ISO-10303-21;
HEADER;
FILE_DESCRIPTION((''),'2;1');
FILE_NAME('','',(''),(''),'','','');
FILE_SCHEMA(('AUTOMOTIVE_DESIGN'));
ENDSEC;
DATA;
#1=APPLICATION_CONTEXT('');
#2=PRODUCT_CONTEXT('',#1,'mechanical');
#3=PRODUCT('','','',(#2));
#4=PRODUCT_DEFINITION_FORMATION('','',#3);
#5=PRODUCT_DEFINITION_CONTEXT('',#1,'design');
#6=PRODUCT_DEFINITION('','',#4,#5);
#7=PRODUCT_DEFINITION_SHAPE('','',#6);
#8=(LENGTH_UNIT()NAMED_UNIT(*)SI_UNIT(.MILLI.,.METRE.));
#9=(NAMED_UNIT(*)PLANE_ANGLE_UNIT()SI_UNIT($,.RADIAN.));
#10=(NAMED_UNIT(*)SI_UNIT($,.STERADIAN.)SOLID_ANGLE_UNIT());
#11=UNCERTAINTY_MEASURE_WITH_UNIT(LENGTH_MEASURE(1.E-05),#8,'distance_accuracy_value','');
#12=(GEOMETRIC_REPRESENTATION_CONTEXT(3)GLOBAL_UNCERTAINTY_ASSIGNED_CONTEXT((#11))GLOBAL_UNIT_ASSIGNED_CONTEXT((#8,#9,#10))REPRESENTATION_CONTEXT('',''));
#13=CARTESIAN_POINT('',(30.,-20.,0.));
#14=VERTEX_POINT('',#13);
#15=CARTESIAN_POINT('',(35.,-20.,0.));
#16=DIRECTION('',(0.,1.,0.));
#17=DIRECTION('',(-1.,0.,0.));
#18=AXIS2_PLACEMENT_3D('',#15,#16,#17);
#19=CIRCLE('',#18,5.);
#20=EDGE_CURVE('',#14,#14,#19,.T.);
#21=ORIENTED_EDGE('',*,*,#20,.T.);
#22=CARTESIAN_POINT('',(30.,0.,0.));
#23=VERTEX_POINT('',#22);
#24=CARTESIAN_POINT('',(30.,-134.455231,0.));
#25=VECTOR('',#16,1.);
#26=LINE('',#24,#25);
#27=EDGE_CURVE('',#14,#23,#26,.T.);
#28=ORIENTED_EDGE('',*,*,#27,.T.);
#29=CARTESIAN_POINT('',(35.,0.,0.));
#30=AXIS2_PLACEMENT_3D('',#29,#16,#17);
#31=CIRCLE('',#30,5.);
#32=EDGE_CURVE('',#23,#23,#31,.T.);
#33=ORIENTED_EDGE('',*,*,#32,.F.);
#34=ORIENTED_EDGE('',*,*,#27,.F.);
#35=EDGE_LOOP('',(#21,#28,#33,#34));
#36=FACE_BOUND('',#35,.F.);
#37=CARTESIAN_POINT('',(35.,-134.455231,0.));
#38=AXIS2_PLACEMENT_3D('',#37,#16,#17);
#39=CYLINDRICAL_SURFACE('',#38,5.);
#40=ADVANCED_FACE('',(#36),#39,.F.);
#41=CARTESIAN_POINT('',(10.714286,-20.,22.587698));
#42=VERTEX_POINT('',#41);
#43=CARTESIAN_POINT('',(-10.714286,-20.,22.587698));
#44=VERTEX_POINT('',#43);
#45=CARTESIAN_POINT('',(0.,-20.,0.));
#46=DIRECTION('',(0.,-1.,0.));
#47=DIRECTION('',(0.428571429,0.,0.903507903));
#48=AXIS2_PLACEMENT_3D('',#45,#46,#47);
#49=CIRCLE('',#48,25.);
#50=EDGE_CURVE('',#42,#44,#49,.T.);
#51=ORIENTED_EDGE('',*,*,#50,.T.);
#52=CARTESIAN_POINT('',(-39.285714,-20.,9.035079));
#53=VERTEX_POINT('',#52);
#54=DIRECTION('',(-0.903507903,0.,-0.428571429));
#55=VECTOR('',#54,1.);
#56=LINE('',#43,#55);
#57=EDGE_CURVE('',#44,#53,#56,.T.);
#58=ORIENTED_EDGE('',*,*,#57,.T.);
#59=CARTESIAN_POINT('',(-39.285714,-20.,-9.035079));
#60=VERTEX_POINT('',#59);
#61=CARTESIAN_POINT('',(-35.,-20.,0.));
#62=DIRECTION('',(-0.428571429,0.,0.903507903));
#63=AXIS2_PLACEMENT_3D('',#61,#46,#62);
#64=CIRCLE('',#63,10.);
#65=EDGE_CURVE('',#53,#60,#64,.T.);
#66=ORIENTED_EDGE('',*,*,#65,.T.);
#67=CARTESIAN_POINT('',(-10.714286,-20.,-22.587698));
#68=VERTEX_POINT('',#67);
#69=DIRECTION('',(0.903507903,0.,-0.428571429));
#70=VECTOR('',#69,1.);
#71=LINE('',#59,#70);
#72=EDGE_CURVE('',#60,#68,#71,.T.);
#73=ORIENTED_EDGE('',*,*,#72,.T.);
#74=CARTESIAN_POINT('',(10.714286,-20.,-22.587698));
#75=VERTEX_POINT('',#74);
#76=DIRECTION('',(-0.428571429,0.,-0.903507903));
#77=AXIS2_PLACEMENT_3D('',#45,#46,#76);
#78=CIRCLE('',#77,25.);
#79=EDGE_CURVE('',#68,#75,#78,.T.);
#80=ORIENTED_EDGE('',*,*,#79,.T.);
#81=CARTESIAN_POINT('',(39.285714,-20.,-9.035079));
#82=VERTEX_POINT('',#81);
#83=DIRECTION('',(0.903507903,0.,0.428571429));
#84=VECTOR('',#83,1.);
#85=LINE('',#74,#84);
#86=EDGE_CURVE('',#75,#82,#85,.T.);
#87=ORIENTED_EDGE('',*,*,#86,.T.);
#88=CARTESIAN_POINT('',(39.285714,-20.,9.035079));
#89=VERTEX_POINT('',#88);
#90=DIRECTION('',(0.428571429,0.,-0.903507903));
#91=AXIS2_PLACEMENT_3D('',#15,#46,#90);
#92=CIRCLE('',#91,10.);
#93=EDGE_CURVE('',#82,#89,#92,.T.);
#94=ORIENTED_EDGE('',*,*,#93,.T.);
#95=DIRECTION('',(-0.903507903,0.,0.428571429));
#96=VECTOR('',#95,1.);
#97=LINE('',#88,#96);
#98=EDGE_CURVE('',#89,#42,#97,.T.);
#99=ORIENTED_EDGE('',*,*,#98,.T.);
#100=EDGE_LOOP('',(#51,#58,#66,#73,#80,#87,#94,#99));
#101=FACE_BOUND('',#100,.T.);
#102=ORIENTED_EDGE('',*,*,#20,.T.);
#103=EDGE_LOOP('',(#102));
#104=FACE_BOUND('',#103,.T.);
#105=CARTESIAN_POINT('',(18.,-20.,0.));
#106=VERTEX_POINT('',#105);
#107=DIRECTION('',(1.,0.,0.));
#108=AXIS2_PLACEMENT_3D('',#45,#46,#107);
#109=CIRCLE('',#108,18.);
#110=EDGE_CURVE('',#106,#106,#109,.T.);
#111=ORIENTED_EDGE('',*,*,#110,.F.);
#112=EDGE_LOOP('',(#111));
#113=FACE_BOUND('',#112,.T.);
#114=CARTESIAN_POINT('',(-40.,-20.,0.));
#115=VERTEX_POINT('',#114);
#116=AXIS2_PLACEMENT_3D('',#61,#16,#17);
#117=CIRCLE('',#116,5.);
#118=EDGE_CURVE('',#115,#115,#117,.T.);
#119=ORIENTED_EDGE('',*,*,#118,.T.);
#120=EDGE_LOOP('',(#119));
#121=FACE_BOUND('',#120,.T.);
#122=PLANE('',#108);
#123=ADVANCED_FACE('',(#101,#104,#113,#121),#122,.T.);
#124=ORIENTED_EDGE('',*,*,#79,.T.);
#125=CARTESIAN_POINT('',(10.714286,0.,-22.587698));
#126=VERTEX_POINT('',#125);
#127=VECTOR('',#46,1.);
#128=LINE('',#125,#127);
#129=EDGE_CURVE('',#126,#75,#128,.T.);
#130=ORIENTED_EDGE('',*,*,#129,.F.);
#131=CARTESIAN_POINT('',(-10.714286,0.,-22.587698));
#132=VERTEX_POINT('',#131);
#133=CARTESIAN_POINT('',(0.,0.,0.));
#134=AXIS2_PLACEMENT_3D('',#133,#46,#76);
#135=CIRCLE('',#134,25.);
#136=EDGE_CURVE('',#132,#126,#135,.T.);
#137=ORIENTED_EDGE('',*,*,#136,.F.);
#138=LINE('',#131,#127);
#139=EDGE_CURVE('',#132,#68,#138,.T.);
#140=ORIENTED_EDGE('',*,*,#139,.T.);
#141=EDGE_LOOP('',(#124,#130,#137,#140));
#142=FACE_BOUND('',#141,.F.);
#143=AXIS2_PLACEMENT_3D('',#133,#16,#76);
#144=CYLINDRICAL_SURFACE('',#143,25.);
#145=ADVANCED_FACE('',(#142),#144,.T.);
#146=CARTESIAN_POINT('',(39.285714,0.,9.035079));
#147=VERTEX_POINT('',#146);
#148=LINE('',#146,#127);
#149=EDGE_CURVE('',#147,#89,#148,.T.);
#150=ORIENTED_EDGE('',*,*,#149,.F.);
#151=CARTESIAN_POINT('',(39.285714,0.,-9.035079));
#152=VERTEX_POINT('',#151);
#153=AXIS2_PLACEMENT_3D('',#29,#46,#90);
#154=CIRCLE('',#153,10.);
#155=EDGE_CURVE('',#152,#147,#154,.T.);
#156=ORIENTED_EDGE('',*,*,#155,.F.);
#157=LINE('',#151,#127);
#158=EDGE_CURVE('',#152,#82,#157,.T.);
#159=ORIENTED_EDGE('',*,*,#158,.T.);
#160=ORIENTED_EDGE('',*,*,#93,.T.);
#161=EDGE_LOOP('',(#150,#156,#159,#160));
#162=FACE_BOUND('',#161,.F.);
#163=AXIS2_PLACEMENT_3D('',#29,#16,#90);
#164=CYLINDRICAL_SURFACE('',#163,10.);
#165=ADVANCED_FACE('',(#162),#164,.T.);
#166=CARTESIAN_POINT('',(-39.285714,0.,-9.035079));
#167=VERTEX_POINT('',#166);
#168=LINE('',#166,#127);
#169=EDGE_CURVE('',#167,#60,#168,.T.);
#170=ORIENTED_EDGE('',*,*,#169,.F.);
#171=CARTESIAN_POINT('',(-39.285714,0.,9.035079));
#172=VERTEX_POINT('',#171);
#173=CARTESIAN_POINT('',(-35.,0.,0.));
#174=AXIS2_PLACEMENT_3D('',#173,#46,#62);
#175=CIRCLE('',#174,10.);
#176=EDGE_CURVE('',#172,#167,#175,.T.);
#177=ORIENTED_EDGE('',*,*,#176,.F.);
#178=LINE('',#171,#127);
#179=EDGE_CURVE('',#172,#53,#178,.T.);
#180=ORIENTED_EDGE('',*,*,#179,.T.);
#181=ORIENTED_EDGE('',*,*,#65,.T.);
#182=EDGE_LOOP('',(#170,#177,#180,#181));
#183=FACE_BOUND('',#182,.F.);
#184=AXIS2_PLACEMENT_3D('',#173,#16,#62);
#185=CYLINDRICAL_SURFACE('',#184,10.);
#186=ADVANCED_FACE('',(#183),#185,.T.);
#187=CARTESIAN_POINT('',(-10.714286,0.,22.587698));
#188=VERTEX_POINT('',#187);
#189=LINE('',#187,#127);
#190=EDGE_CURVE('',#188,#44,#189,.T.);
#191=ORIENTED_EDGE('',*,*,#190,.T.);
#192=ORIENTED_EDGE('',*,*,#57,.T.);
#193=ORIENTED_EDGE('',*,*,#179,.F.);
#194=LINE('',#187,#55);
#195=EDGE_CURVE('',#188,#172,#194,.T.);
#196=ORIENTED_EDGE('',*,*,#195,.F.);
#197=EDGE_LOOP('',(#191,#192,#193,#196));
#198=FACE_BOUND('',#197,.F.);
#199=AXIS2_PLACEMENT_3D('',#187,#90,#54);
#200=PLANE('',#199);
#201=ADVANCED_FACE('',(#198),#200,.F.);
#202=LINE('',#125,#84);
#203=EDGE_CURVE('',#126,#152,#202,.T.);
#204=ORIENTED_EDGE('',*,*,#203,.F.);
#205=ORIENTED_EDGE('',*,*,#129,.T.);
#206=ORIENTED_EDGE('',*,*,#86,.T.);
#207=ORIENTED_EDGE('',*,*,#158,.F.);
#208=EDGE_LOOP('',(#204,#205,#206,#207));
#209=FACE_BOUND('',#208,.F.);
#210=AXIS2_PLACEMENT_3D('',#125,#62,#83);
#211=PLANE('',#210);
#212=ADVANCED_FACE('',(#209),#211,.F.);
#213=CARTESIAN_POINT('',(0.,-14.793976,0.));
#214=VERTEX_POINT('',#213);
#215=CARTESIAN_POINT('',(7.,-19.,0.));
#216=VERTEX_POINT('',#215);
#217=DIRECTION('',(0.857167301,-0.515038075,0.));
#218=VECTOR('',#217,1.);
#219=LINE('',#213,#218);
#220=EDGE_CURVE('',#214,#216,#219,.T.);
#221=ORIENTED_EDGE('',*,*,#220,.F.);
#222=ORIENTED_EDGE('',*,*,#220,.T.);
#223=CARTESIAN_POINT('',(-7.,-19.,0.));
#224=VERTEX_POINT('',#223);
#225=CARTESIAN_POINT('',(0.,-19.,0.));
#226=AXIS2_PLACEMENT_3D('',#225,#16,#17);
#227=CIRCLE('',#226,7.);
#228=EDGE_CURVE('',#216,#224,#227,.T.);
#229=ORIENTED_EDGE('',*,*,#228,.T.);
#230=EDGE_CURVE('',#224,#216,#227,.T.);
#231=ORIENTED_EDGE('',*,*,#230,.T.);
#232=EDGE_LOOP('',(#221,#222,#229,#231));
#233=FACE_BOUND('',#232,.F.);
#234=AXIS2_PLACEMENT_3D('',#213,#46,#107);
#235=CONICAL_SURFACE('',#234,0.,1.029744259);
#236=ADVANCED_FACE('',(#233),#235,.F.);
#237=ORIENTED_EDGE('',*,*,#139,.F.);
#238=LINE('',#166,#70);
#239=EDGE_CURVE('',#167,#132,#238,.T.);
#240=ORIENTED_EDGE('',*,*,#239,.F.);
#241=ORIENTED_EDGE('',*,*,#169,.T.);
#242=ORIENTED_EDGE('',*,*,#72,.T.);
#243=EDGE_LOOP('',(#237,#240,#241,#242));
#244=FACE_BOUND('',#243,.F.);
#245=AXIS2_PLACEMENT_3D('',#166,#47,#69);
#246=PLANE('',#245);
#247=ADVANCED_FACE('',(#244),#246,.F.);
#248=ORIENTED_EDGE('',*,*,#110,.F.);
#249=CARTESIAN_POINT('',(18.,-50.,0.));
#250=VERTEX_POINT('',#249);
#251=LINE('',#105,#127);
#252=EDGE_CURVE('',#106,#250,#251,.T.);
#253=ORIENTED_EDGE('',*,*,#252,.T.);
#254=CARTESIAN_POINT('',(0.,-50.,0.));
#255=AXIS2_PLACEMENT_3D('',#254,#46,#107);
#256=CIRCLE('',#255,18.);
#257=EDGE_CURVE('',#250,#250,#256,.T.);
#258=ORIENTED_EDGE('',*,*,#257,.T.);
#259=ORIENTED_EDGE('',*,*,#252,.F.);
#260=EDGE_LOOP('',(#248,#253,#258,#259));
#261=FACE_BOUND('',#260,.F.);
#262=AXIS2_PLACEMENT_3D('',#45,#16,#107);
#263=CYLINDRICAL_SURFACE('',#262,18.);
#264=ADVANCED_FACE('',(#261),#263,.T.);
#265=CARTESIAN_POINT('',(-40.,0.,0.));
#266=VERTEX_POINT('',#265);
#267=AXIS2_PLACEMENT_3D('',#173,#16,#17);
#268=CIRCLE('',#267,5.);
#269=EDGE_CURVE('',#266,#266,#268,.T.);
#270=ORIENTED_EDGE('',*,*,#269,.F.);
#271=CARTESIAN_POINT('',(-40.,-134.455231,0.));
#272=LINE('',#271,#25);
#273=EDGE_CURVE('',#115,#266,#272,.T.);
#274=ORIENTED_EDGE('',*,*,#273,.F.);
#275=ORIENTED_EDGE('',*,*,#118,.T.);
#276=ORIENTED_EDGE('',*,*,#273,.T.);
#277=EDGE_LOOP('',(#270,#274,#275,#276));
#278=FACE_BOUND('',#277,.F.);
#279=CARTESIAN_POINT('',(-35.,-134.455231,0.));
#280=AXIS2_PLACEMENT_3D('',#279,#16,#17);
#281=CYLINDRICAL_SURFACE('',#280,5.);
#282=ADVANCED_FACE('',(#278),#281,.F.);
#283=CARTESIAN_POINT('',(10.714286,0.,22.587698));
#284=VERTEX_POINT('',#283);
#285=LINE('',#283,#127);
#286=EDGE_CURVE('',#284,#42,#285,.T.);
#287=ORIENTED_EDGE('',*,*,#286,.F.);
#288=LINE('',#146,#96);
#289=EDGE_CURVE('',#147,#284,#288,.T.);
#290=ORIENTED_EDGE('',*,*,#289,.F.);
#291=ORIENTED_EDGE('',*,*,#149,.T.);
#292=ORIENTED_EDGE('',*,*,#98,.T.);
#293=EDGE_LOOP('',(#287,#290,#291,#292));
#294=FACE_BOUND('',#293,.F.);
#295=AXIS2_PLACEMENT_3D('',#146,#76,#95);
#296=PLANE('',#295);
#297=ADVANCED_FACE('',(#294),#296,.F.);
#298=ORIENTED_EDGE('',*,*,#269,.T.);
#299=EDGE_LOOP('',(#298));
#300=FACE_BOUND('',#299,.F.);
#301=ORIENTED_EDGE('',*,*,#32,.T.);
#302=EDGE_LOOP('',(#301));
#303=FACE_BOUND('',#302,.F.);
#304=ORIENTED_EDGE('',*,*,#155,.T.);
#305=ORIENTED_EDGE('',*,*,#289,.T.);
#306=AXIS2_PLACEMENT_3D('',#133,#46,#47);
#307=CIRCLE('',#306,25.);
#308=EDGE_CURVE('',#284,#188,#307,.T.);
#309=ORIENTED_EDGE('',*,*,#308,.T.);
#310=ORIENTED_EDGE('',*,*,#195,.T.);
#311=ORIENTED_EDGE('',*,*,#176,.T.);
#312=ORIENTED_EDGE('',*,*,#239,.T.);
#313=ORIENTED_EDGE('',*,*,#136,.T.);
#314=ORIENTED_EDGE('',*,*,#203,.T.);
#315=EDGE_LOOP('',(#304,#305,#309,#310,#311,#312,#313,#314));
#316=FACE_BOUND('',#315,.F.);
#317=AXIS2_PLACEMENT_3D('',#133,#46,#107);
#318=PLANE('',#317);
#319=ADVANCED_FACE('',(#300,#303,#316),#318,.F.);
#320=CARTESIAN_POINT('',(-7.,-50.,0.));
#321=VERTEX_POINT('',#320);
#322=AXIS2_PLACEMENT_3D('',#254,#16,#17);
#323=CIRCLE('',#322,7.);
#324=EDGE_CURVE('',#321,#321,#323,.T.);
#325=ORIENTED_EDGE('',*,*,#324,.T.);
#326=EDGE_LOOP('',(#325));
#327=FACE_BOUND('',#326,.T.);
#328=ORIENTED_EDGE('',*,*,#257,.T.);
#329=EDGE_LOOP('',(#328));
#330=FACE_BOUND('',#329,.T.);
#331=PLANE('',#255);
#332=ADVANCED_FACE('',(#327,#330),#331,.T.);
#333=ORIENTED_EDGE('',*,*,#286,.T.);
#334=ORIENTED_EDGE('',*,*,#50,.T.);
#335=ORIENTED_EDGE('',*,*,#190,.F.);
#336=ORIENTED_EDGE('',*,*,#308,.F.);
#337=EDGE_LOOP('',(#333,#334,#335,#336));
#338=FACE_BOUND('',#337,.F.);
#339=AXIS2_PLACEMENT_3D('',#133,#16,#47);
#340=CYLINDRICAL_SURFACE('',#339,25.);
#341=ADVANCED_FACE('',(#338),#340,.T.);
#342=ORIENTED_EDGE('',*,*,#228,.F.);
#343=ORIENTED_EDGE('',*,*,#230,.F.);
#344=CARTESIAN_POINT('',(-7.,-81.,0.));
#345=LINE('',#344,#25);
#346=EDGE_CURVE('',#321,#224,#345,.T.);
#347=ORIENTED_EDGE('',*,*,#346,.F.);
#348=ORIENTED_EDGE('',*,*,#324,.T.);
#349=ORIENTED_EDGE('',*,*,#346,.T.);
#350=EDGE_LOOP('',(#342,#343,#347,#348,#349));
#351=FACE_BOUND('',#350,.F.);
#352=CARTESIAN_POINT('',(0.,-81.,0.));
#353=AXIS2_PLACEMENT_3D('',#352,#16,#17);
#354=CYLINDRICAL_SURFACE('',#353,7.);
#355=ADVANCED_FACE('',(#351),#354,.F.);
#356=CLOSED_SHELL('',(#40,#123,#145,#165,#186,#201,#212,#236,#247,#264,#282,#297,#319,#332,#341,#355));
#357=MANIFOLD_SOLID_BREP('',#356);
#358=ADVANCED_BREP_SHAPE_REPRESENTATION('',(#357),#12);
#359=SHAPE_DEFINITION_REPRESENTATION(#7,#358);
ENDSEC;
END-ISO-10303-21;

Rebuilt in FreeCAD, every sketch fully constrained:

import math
import FreeCAD as App
import Part
import Sketcher

doc = App.newDocument("Part")
body = doc.addObject("PartDesign::Body", "Body")

# Sketch on XZ plane
sketch1 = body.newObject("Sketcher::SketchObject", "Sketch")
sketch1.AttachmentSupport = (doc.getObject("XZ_Plane"), [""])
sketch1.MapMode = "FlatFace"
sketch1.addGeometry([
    Part.LineSegment(App.Vector(39, 9, 0), App.Vector(11, 23, 0)),  # 0
    Part.ArcOfCircle(Part.Circle(App.Vector(0, 0, 0), App.Vector(0, 0, 1), 25), math.radians(65), math.radians(115)),  # 1
    Part.LineSegment(App.Vector(-11, 23, 0), App.Vector(-39, 9, 0)),  # 2
    Part.ArcOfCircle(Part.Circle(App.Vector(-35, 0, 0), App.Vector(0, 0, 1), 10), math.radians(115), math.radians(245)),  # 3
    Part.LineSegment(App.Vector(-39, -9, 0), App.Vector(-11, -23, 0)),  # 4
    Part.ArcOfCircle(Part.Circle(App.Vector(0, 0, 0), App.Vector(0, 0, 1), 25), math.radians(-115), math.radians(-65)),  # 5
    Part.LineSegment(App.Vector(11, -23, 0), App.Vector(39, -9, 0)),  # 6
    Part.ArcOfCircle(Part.Circle(App.Vector(35, 0, 0), App.Vector(0, 0, 1), 10), math.radians(-65), math.radians(65)),  # 7
], False)
sketch1.addConstraint([
    Sketcher.Constraint("Tangent", 0, 2, 1, 1),
    Sketcher.Constraint("Tangent", 1, 2, 2, 1),
    Sketcher.Constraint("Tangent", 2, 2, 3, 1),
    Sketcher.Constraint("Tangent", 3, 2, 4, 1),
    Sketcher.Constraint("Tangent", 4, 2, 5, 1),
    Sketcher.Constraint("Tangent", 5, 2, 6, 1),
    Sketcher.Constraint("Tangent", 6, 2, 7, 1),
    Sketcher.Constraint("Tangent", 7, 2, 0, 1),
    Sketcher.Constraint("Coincident", 1, 3, -1, 1),
    Sketcher.Constraint("Coincident", 5, 3, -1, 1),
    Sketcher.Constraint("Equal", 1, 5),
    Sketcher.Constraint("Equal", 3, 7),
    Sketcher.Constraint("Symmetric", 3, 3, 7, 3, -1, 1),
    Sketcher.Constraint("PointOnObject", 3, 3, -1),
    Sketcher.Constraint("Radius", 1, 25.0),
    Sketcher.Constraint("Radius", 3, 10.0),
    Sketcher.Constraint("DistanceX", 3, 3, -1, 1, 35.0),
])
pad1 = body.newObject("PartDesign::Pad", "Pad")
pad1.Profile = sketch1
pad1.Length = 20

# Sketch on XZ plane
sketch2 = body.newObject("Sketcher::SketchObject", "Sketch001")
sketch2.AttachmentSupport = (doc.getObject("XZ_Plane"), [""])
sketch2.MapMode = "FlatFace"
sketch2.AttachmentOffset = App.Placement(App.Vector(0, 0, 20), App.Rotation())
sketch2.addGeometry(Part.Circle(App.Vector(0, 0, 0), App.Vector(0, 0, 1), 18), False)
sketch2.addConstraint([
    Sketcher.Constraint("Coincident", 0, 3, -1, 1),
    Sketcher.Constraint("Diameter", 0, 36.0),
])
pad2 = body.newObject("PartDesign::Pad", "Pad001")
pad2.Profile = sketch2
pad2.Length = 30

# Sketch on XZ plane
sketch3 = body.newObject("Sketcher::SketchObject", "Sketch002")
sketch3.AttachmentSupport = (doc.getObject("XZ_Plane"), [""])
sketch3.MapMode = "FlatFace"
sketch3.AttachmentOffset = App.Placement(App.Vector(0, 0, 20), App.Rotation())
sketch3.addGeometry([
    Part.Circle(App.Vector(35, 0, 0), App.Vector(0, 0, 1), 5),
    Part.Circle(App.Vector(-35, 0, 0), App.Vector(0, 0, 1), 5),
], False)
sketch3.addConstraint([
    Sketcher.Constraint("Equal", 0, 1),
    Sketcher.Constraint("Symmetric", 0, 3, 1, 3, -1, 1),
    Sketcher.Constraint("PointOnObject", 0, 3, -1),
    Sketcher.Constraint("Diameter", 0, 10.0),
    Sketcher.Constraint("DistanceX", -1, 1, 0, 3, 35.0),
])
doc.recompute()
hole = body.newObject("PartDesign::Hole", "Hole")
hole.Profile = sketch3
hole.ThreadType = "None"
hole.Diameter = 10
hole.DepthType = "ThroughAll"

# Sketch on XZ plane
sketch4 = body.newObject("Sketcher::SketchObject", "Sketch003")
sketch4.AttachmentSupport = (doc.getObject("XZ_Plane"), [""])
sketch4.MapMode = "FlatFace"
sketch4.AttachmentOffset = App.Placement(App.Vector(0, 0, 50), App.Rotation())
sketch4.addGeometry(Part.Circle(App.Vector(0, 0, 0), App.Vector(0, 0, 1), 7), False)
sketch4.addConstraint([
    Sketcher.Constraint("Coincident", 0, 3, -1, 1),
    Sketcher.Constraint("Diameter", 0, 14.0),
])
doc.recompute()
hole2 = body.newObject("PartDesign::Hole", "Hole001")
hole2.Profile = sketch4
hole2.ThreadType = "None"
hole2.Diameter = 14
hole2.DepthType = "Dimension"
hole2.Depth = 31
hole2.DrillPoint = "Angled"
hole2.DrillPointAngle = 118

doc.recompute()
